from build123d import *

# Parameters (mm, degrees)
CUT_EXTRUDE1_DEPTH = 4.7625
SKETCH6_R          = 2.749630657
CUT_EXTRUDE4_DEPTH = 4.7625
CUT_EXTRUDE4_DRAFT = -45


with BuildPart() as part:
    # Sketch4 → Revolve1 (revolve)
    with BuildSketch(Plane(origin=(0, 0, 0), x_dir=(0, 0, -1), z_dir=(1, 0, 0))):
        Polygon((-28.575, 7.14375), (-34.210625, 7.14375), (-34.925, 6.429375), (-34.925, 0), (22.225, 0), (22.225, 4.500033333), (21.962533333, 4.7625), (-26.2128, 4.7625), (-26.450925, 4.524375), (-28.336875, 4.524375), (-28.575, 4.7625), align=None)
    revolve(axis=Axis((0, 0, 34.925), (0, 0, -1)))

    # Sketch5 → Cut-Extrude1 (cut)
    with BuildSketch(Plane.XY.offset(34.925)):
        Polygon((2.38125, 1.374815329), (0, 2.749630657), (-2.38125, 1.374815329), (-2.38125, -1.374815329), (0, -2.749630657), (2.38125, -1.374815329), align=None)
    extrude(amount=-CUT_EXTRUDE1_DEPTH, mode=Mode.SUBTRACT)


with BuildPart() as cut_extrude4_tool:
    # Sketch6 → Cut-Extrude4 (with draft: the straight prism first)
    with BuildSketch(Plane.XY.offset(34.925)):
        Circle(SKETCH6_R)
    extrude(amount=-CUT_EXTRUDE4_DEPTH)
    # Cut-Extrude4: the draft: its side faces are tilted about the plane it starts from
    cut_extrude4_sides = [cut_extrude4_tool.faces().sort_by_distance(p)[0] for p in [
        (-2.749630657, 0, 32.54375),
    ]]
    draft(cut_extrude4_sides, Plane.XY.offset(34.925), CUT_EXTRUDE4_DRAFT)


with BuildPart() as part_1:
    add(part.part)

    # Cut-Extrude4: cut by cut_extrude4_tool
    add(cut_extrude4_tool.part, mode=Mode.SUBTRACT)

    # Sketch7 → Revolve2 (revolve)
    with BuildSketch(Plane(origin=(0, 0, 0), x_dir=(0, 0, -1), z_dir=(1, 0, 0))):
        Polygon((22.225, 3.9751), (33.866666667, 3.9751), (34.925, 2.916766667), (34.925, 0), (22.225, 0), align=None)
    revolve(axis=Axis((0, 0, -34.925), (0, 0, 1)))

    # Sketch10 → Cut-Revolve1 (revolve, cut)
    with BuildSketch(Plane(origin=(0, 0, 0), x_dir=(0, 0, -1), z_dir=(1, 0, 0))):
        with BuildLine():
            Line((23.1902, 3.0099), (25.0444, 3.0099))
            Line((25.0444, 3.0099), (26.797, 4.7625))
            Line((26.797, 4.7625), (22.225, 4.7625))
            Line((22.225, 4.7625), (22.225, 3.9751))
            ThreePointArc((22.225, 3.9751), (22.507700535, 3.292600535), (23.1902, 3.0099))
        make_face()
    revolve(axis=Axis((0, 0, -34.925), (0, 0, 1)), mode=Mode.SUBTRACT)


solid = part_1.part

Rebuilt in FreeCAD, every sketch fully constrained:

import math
import FreeCAD as App
import Part
import Sketcher
Q = App.Units.Quantity


def faces_at(feature, points):
    """Names of the faces that lie closest to the given points."""
    faces = feature.Shape.Faces
    near = lambda p: min(range(len(faces)), key=lambda i: faces[i].distToShape(Part.Vertex(*p))[0])
    return sorted({f"Face{near(p) + 1}" for p in points})


def add_polygon(sketch, points):
    """Adds a closed chain of lines whose ends are joined by coincident constraints."""
    first, n = sketch.GeometryCount, len(points)
    for a, b in zip(points, points[1:] + points[:1]):
        sketch.addGeometry(Part.LineSegment(App.Vector(*a, 0), App.Vector(*b, 0)), False)
    for i in range(n):
        sketch.addConstraint(Sketcher.Constraint("Coincident", first + i, 2, first + (i + 1) % n, 1))

doc = App.newDocument("Part")
body = doc.addObject("PartDesign::Body", "Body")

sketch1 = body.newObject("Sketcher::SketchObject", "Sketch")
sketch1.AttachmentSupport = (doc.getObject("YZ_Plane"), [""])
sketch1.MapMode = "FlatFace"
add_polygon(sketch1, [(7.14, 28.57), (7.14, 34.21), (6.43, 34.92), (0, 34.92), (0, -22.23), (4.5, -22.23), (4.76, -21.96), (4.76, 26.21), (4.52, 26.45), (4.52, 28.34), (4.76, 28.57)])
sketch1.addConstraint([
    Sketcher.Constraint("Vertical", 0),
    Sketcher.Constraint("Horizontal", 2),
    Sketcher.Constraint("Vertical", 3),
    Sketcher.Constraint("Horizontal", 4),
    Sketcher.Constraint("Vertical", 6),
    Sketcher.Constraint("Vertical", 8),
    Sketcher.Constraint("Horizontal", 10),
    Sketcher.Constraint("PointOnObject", 2, 2, -2),
    Sketcher.Constraint("Perpendicular", 1, 5),
    Sketcher.Constraint("Perpendicular", 5, 7),
    Sketcher.Constraint("Perpendicular", 7, 9),
    Sketcher.Constraint("Vertical", 6, 2, 9, 2),
    Sketcher.Constraint("Equal", 7, 9),
    Sketcher.Constraint("DistanceY", 3, 2, 3, 1, Q("2.25 in")),
    Sketcher.Constraint("DistanceX", 10, 1, 10, 2, Q("0.09375 in")),
    Sketcher.Constraint("DistanceY", 9, 2, 1, 2, Q("0.25 in")),
    Sketcher.Constraint("DistanceX", -1, 1, 0, 2, Q("0.28125 in")),
    Sketcher.Constraint("DistanceY", -1, 1, 1, 2, Q("1.375 in")),
    Sketcher.Constraint("DistanceY", -1, 1, 6, 2, Q("1.032 in")),
    Sketcher.Constraint("DistanceX", 7, 2, 1, 2, Q("0.075 in")),
    Sketcher.Constraint("DistanceY", 7, 2, 0, 2, Q("0.3055 in")),
    Sketcher.Constraint("DistanceX", 4, 1, 4, 2, Q("4.500033 mm")),
])
revolution = body.newObject("PartDesign::Revolution", "Revolution")
revolution.Profile = sketch1
revolution.ReferenceAxis = (sketch1, ["V_Axis"])
revolution.Angle = 360

sketch2 = body.newObject("Sketcher::SketchObject", "Sketch001")
sketch2.AttachmentSupport = (doc.getObject("XY_Plane"), [""])
sketch2.MapMode = "FlatFace"
sketch2.AttachmentOffset = App.Placement(App.Vector(0, 0, 1.375 * 25.4), App.Rotation())
add_polygon(sketch2, [(2.4, 1.4), (0, 2.7), (-2.4, 1.4), (-2.4, -1.4), (0, -2.7), (2.4, -1.4)])
sketch2.addConstraint([
    Sketcher.Constraint("Vertical", 2),
    Sketcher.Constraint("Vertical", 5),
    Sketcher.Constraint("Symmetric", 0, 2, 3, 2, -1, 1),
    Sketcher.Constraint("Symmetric", 1, 2, 4, 2, -1, 1),
    Sketcher.Constraint("PointOnObject", 0, 2, -2),
    Sketcher.Constraint("Parallel", 0, 3),
    Sketcher.Constraint("Horizontal", 2, 2, 4, 2),
    Sketcher.Constraint("Angle", 0, Q("150 deg")),
    Sketcher.Constraint("DistanceX", 1, 2, -1, 1, Q("0.09375 in")),
    Sketcher.Constraint("DistanceY", 2, 2, 2, 1, Q("2.749631 mm")),
])
pocket1 = body.newObject("PartDesign::Pocket", "Pocket")
pocket1.Profile = sketch2
pocket1.Length = Q("0.1875 in")
body2 = doc.addObject("PartDesign::Body", "Body001")

sketch3 = body2.newObject("Sketcher::SketchObject", "Sketch002")
sketch3.AttachmentSupport = (doc.getObject("XY_Plane001"), [""])
sketch3.MapMode = "FlatFace"
sketch3.AttachmentOffset = App.Placement(App.Vector(0, 0, 1.375 * 25.4), App.Rotation())
sketch3.addGeometry(Part.Circle(App.Vector(0, 0, 0), App.Vector(0, 0, 1), 2.7), False)
sketch3.addConstraint([
    Sketcher.Constraint("Coincident", 0, 3, -1, 1),
    Sketcher.Constraint("Diameter", 0, Q("5.499261 mm")),
])
pad1 = body2.newObject("PartDesign::Pad", "Pad")
pad1.Profile = sketch3
pad1.Length = Q("0.1875 in")
pad1.Reversed = True
doc.recompute()

datumplane = body2.newObject("PartDesign::Plane", "DatumPlane")
datumplane.AttachmentSupport = (doc.getObject("XY_Plane001"), [""])
datumplane.MapMode = "FlatFace"
datumplane.AttachmentOffset = App.Placement(App.Vector(0, 0, 1.375 * 25.4), App.Rotation())
draft = body2.newObject("PartDesign::Draft", "Draft")
draft.Base = (pad1, faces_at(pad1, [(-2.75, 0, 32.544)]))
draft.NeutralPlane = (datumplane, [""])
draft.Angle = 45
draft.Reversed = True
doc.recompute()

boolean = body.newObject("PartDesign::Boolean", "Boolean")
boolean.Type = "Cut"
boolean.addObjects([body2])

sketch4 = body.newObject("Sketcher::SketchObject", "Sketch003")
sketch4.AttachmentSupport = (doc.getObject("YZ_Plane"), [""])
sketch4.MapMode = "FlatFace"
add_polygon(sketch4, [(4, -33.9), (4, -22.2), (0, -22.2), (0, -34.9), (2.9, -34.9)])
sketch4.addConstraint([
    Sketcher.Constraint("Vertical", 0),
    Sketcher.Constraint("Horizontal", 1),
    Sketcher.Constraint("Vertical", 2),
    Sketcher.Constraint("Horizontal", 3),
    Sketcher.Constraint("PointOnObject", 1, 2, -2),
    Sketcher.Constraint("DistanceY", 2, 2, 2, 1, Q("0.5 in")),
    Sketcher.Constraint("Angle", 4, Q("45 deg")),
    Sketcher.Constraint("DistanceX", 1, 2, 1, 1, Q("0.1565 in")),
    Sketcher.Constraint("DistanceY", 0, 2, -1, 1, Q("0.875 in")),
    Sketcher.Constraint("Distance", 4, Q("1.496709 mm")),
])
revolution2 = body.newObject("PartDesign::Revolution", "Revolution001")
revolution2.Profile = sketch4
revolution2.ReferenceAxis = (sketch4, ["V_Axis"])
revolution2.Angle = 360

sketch5 = body.newObject("Sketcher::SketchObject", "Sketch004")
sketch5.AttachmentSupport = (doc.getObject("YZ_Plane"), [""])
sketch5.MapMode = "FlatFace"
sketch5.addGeometry([
    Part.LineSegment(App.Vector(3, -23.2, 0), App.Vector(3, -25, 0)),
    Part.LineSegment(App.Vector(3, -25, 0), App.Vector(4.8, -26.8, 0)),
    Part.LineSegment(App.Vector(4.8, -26.8, 0), App.Vector(4.8, -22.2, 0)),
    Part.LineSegment(App.Vector(4.8, -22.2, 0), App.Vector(4, -22.2, 0)),
    Part.ArcOfCircle(Part.Circle(App.Vector(4, -23.2, 0), App.Vector(0, 0, 1), 1), math.radians(90), math.radians(180)),
], False)
sketch5.addConstraint([
    Sketcher.Constraint("Coincident", 0, 2, 1, 1),
    Sketcher.Constraint("Coincident", 1, 2, 2, 1),
    Sketcher.Constraint("Coincident", 2, 2, 3, 1),
    Sketcher.Constraint("Tangent", 3, 2, 4, 1),
    Sketcher.Constraint("Tangent", 4, 2, 0, 1),
    Sketcher.Constraint("Vertical", 0),
    Sketcher.Constraint("Vertical", 2),
    Sketcher.Constraint("Horizontal", 3),
    Sketcher.Constraint("Angle", 1, Q("-45 deg")),
    Sketcher.Constraint("Radius", 4, Q("0.038 in")),
    Sketcher.Constraint("DistanceY", 2, 1, 2, 2, Q("0.18 in")),
    Sketcher.Constraint("DistanceX", 3, 2, 3, 1, Q("0.031 in")),
    Sketcher.Constraint("DistanceY", 4, 3, -1, 1, Q("0.913 in")),
    Sketcher.Constraint("DistanceX", -1, 1, 1, 2, Q("0.1875 in")),
])
groove = body.newObject("PartDesign::Groove", "Groove")
groove.Profile = sketch5
groove.ReferenceAxis = (sketch5, ["V_Axis"])
groove.Angle = 360

doc.recompute()
